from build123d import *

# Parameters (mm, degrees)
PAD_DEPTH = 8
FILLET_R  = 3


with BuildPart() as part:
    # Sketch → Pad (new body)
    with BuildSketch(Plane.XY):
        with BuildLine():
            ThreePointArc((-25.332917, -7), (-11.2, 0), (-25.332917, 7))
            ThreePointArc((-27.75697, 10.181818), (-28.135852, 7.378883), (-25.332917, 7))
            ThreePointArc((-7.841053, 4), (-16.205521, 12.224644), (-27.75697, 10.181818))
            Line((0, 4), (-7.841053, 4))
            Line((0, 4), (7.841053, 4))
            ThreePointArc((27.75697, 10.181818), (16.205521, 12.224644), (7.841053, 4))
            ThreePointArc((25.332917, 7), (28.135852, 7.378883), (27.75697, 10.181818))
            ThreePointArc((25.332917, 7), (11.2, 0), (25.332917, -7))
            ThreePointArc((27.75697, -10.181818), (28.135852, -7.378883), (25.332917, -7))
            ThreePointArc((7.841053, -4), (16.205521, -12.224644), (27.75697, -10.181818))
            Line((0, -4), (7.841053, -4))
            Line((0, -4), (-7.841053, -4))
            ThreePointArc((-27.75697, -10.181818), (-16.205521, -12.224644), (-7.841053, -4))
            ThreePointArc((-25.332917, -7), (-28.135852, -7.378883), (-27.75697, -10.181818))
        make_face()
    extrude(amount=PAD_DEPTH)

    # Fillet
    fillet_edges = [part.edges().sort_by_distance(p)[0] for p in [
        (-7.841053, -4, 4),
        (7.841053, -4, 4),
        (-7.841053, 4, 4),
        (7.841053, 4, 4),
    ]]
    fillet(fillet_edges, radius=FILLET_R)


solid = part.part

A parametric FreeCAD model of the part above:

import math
import FreeCAD as App
import Part
import Sketcher
from FreeCAD import Vector


def edges_at(feature, points):
    """Names of the edges that pass closest to the given points."""
    edges = feature.Shape.Edges
    near = lambda p: min(range(len(edges)), key=lambda i: edges[i].distToShape(Part.Vertex(*p))[0])
    return sorted({f"Edge{near(p) + 1}" for p in points})

doc = App.newDocument("Part")
params = doc.addObject("Spreadsheet::Sheet", "Params")
for row, (alias, value) in enumerate([
    ("sketch1_radius", "2 mm"),
    ("sketch1_radius2", "8.8 mm"),
    ("pad1_length", "8 mm"),
    ("fillet_radius", "3 mm"),
], start=1):
    params.set(f"A{row}", alias)
    params.set(f"B{row}", "=" + value)
    params.setAlias(f"B{row}", alias)

body = doc.addObject("PartDesign::Body", "Body")

sketch1 = body.newObject("Sketcher::SketchObject", "Sketch")
sketch1.AttachmentSupport = (doc.getObject("XY_Plane"), [""])
sketch1.MapMode = "FlatFace"
sketch1.addGeometry([
    Part.ArcOfCircle(Part.Circle(Vector(-20, 0, 0), Vector(0, 0, 1), 8.8), math.radians(-127), math.radians(127)),
    Part.ArcOfCircle(Part.Circle(Vector(-26.5, -8.6, 0), Vector(0, 0, 1), 2), math.radians(53), math.radians(233)),
    Part.ArcOfCircle(Part.Circle(Vector(-20, 0, 0), Vector(0, 0, 1), 12.8), math.radians(-127), math.radians(-18)),
    Part.LineSegment(Vector(-7.8, -4, 0), Vector(7.8, -4, 0)),
    Part.ArcOfCircle(Part.Circle(Vector(20, 0, 0), Vector(0, 0, 1), 12.8), math.radians(-162), math.radians(-53)),
    Part.ArcOfCircle(Part.Circle(Vector(26.5, -8.6, 0), Vector(0, 0, 1), 2), math.radians(-53), math.radians(127)),
    Part.ArcOfCircle(Part.Circle(Vector(20, 0, 0), Vector(0, 0, 1), 8.8), math.radians(53), math.radians(307)),
    Part.ArcOfCircle(Part.Circle(Vector(26.5, 8.6, 0), Vector(0, 0, 1), 2), math.radians(-127), math.radians(53)),
    Part.ArcOfCircle(Part.Circle(Vector(20, 0, 0), Vector(0, 0, 1), 12.8), math.radians(53), math.radians(162)),
    Part.LineSegment(Vector(7.8, 4, 0), Vector(-7.8, 4, 0)),
    Part.ArcOfCircle(Part.Circle(Vector(-20, 0, 0), Vector(0, 0, 1), 12.8), math.radians(18), math.radians(127)),
    Part.ArcOfCircle(Part.Circle(Vector(-26.5, 8.6, 0), Vector(0, 0, 1), 2), math.radians(127), math.radians(307)),
], False)
sketch1.addConstraint([
    Sketcher.Constraint("Tangent", 0, 1, 1, 1),
    Sketcher.Constraint("Tangent", 1, 2, 2, 1),
    Sketcher.Constraint("Coincident", 2, 2, 3, 1),
    Sketcher.Constraint("Coincident", 3, 2, 4, 1),
    Sketcher.Constraint("Tangent", 4, 2, 5, 1),
    Sketcher.Constraint("Tangent", 5, 2, 6, 2),
    Sketcher.Constraint("Tangent", 6, 1, 7, 1),
    Sketcher.Constraint("Tangent", 7, 2, 8, 1),
    Sketcher.Constraint("Coincident", 8, 2, 9, 1),
    Sketcher.Constraint("Coincident", 9, 2, 10, 1),
    Sketcher.Constraint("Tangent", 10, 2, 11, 1),
    Sketcher.Constraint("Tangent", 11, 2, 0, 2),
    Sketcher.Constraint("Horizontal", 3),
    Sketcher.Constraint("Horizontal", 9),
    Sketcher.Constraint("Coincident", 2, 3, 0, 3),
    Sketcher.Constraint("Coincident", 6, 3, 4, 3),
    Sketcher.Constraint("Coincident", 8, 3, 4, 3),
    Sketcher.Constraint("Coincident", 10, 3, 0, 3),
    Sketcher.Constraint("Equal", 2, 4),
    Sketcher.Constraint("Equal", 1, 5),
    Sketcher.Constraint("Equal", 5, 7),
    Sketcher.Constraint("Equal", 8, 10),
    Sketcher.Constraint("Symmetric", 0, 3, 4, 3, -1, 1),
    Sketcher.Constraint("Symmetric", 1, 3, 5, 3, -2),
    Sketcher.Constraint("Horizontal", 7, 3, 11, 3),
    Sketcher.Constraint("Vertical", 5, 3, 7, 3),
    Sketcher.Constraint("Vertical", 3, 2, 8, 2),
    Sketcher.Constraint("Radius", 1, 2.0),
    Sketcher.Constraint("Radius", 0, 8.8),
    Sketcher.Constraint("DistanceX", 0, 3, -1, 1, 20.0),
    Sketcher.Constraint("DistanceY", 0, 1, -1, 1, 7.0),
    Sketcher.Constraint("DistanceY", 2, 2, -1, 1, 4.0),
])
sketch1.setExpression("Constraints[27]", "Params.sketch1_radius")
sketch1.setExpression("Constraints[28]", "Params.sketch1_radius2")
pad1 = body.newObject("PartDesign::Pad", "Pad")
pad1.Profile = sketch1
pad1.setExpression("Length", "Params.pad1_length")
doc.recompute()

fillet = body.newObject("PartDesign::Fillet", "Fillet")
fillet.Base = (pad1, edges_at(pad1, [
    (-7.841, -4, 4),
    (7.841, -4, 4),
    (-7.841, 4, 4),
    (7.841, 4, 4),
]))
fillet.setExpression("Radius", "Params.fillet_radius")

doc.recompute()
